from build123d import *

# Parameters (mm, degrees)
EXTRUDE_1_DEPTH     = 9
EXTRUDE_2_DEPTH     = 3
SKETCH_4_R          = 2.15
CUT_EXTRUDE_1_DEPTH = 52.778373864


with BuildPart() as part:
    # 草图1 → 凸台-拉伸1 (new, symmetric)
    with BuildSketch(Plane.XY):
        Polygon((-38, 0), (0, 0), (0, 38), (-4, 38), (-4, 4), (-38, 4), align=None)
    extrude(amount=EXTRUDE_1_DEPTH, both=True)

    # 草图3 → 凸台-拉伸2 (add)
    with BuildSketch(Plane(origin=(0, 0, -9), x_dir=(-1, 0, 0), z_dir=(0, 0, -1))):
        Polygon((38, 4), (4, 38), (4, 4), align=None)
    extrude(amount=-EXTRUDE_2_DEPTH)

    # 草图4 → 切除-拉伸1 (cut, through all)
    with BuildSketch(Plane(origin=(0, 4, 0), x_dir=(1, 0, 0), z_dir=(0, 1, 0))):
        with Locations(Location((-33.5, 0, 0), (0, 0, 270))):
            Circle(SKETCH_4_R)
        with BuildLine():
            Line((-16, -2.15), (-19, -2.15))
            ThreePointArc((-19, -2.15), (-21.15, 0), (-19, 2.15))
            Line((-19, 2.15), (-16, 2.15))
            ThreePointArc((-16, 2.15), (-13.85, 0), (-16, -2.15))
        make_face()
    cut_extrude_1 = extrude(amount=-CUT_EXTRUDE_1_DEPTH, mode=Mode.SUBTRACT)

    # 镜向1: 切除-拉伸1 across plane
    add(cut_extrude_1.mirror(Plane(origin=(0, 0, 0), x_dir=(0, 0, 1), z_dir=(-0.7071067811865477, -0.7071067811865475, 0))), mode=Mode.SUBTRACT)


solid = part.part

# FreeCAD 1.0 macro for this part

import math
import FreeCAD as App
import Part
import Sketcher
from FreeCAD import Vector
Q = App.Units.Quantity


def add_polygon(sketch, points):
    """Adds a closed chain of lines whose ends are joined by coincident constraints."""
    first, n = sketch.GeometryCount, len(points)
    for a, b in zip(points, points[1:] + points[:1]):
        sketch.addGeometry(Part.LineSegment(App.Vector(*a, 0), App.Vector(*b, 0)), False)
    for i in range(n):
        sketch.addConstraint(Sketcher.Constraint("Coincident", first + i, 2, first + (i + 1) % n, 1))

doc = App.newDocument("Part")
body = doc.addObject("PartDesign::Body", "Body")

# Sketch on XY plane
sketch1 = doc.addObject("Sketcher::SketchObject", "Sketch")
body.addObject(sketch1)
sketch1.AttachmentSupport = (doc.XY_Plane, [""])
sketch1.MapMode = "FlatFace"
add_polygon(sketch1, [(-38, 0), (0, 0), (0, 38), (-4, 38), (-4, 4), (-38, 4)])  # lines 0-5
sketch1.addConstraint([
    Sketcher.Constraint("Horizontal", 0),
    Sketcher.Constraint("Vertical", 1),
    Sketcher.Constraint("Horizontal", 2),
    Sketcher.Constraint("Vertical", 3),
    Sketcher.Constraint("Horizontal", 4),
    Sketcher.Constraint("Vertical", 5),
    Sketcher.Constraint("Coincident", 0, 2, -1, 1),
    Sketcher.Constraint("Equal", 0, 1),
    Sketcher.Constraint("Equal", 4, 3),
    Sketcher.Constraint("DistanceX", 0, 1, 0, 2, Q("38 mm")),
    Sketcher.Constraint("DistanceX", 2, 2, 2, 1, Q("4 mm")),
])
pad1 = doc.addObject("PartDesign::Pad", "Pad")
body.addObject(pad1)
pad1.Profile = sketch1
pad1.Length = 18
pad1.Midplane = True

# Sketch on XY plane
sketch2 = doc.addObject("Sketcher::SketchObject", "Sketch001")
body.addObject(sketch2)
sketch2.AttachmentSupport = (doc.XY_Plane, [""])
sketch2.MapMode = "FlatFace"
sketch2.AttachmentOffset = App.Placement(Vector(0, 0, -9), App.Rotation())
add_polygon(sketch2, [(-38, 4), (-4, 38), (-4, 4)])  # lines 0-2
sketch2.addConstraint([
    Sketcher.Constraint("Vertical", 1),
    Sketcher.Constraint("Horizontal", 2),
    Sketcher.Constraint("Equal", 2, 1),
    Sketcher.Constraint("DistanceX", 2, 2, 2, 1, Q("34 mm")),
    Sketcher.Constraint("DistanceX", 0, 2, -1, 1, Q("4 mm")),
    Sketcher.Constraint("DistanceY", -1, 1, 0, 2, Q("38 mm")),
])
pad2 = doc.addObject("PartDesign::Pad", "Pad001")
body.addObject(pad2)
pad2.Profile = sketch2
pad2.Length = 3

# Sketch on XZ plane
sketch3 = doc.addObject("Sketcher::SketchObject", "Sketch002")
body.addObject(sketch3)
sketch3.AttachmentSupport = (doc.XZ_Plane, [""])
sketch3.MapMode = "FlatFace"
sketch3.AttachmentOffset = App.Placement(Vector(0, 0, -4), App.Rotation())
sketch3.addGeometry([
    Part.Circle(Vector(-33.5, 0, 0), Vector(0, 0, 1), 2.1),  # 0
    Part.LineSegment(Vector(-19, 2.1, 0), Vector(-16, 2.1, 0)),  # 1
    Part.ArcOfCircle(Part.Circle(Vector(-16, 0, 0), Vector(0, 0, 1), 2.1), math.radians(-90), math.radians(90)),  # 2
    Part.LineSegment(Vector(-16, -2.1, 0), Vector(-19, -2.1, 0)),  # 3
    Part.ArcOfCircle(Part.Circle(Vector(-19, 0, 0), Vector(0, 0, 1), 2.1), math.radians(90), math.radians(270)),  # 4
], False)
sketch3.addConstraint([
    Sketcher.Constraint("Tangent", 1, 2, 2, 2),
    Sketcher.Constraint("Tangent", 2, 1, 3, 1),
    Sketcher.Constraint("Tangent", 3, 2, 4, 2),
    Sketcher.Constraint("Tangent", 4, 1, 1, 1),
    Sketcher.Constraint("Horizontal", 1),
    Sketcher.Constraint("Horizontal", 3),
    Sketcher.Constraint("Equal", 0, 2),
    Sketcher.Constraint("PointOnObject", 0, 3, -1),
    Sketcher.Constraint("PointOnObject", 2, 3, -1),
    Sketcher.Constraint("Diameter", 0, Q("4.3 mm")),
    Sketcher.Constraint("DistanceX", 1, 1, 1, 2, Q("3 mm")),
    Sketcher.Constraint("DistanceX", 2, 3, -1, 1, Q("16 mm")),
    Sketcher.Constraint("DistanceX", 0, 3, -1, 1, Q("33.5 mm")),
])
pocket1 = doc.addObject("PartDesign::Pocket", "Pocket")
body.addObject(pocket1)
pocket1.Profile = sketch3
pocket1.Type = "ThroughAll"
pocket1.Reversed = True
doc.recompute()

datumplane = doc.addObject("PartDesign::Plane", "DatumPlane")
body.addObject(datumplane)
datumplane.Placement = App.Placement(Vector(0, 0, 0), App.Rotation(Vector(-0.707106781, 0.707106781, 0), Vector(0, 0, -1), Vector(-0.707106781, -0.707106781, 0), "ZXY"))
mirrored = doc.addObject("PartDesign::Mirrored", "Mirrored")
body.addObject(mirrored)
mirrored.Originals = [pocket1]
mirrored.MirrorPlane = (datumplane, [""])
body.Tip = mirrored

doc.recompute()
